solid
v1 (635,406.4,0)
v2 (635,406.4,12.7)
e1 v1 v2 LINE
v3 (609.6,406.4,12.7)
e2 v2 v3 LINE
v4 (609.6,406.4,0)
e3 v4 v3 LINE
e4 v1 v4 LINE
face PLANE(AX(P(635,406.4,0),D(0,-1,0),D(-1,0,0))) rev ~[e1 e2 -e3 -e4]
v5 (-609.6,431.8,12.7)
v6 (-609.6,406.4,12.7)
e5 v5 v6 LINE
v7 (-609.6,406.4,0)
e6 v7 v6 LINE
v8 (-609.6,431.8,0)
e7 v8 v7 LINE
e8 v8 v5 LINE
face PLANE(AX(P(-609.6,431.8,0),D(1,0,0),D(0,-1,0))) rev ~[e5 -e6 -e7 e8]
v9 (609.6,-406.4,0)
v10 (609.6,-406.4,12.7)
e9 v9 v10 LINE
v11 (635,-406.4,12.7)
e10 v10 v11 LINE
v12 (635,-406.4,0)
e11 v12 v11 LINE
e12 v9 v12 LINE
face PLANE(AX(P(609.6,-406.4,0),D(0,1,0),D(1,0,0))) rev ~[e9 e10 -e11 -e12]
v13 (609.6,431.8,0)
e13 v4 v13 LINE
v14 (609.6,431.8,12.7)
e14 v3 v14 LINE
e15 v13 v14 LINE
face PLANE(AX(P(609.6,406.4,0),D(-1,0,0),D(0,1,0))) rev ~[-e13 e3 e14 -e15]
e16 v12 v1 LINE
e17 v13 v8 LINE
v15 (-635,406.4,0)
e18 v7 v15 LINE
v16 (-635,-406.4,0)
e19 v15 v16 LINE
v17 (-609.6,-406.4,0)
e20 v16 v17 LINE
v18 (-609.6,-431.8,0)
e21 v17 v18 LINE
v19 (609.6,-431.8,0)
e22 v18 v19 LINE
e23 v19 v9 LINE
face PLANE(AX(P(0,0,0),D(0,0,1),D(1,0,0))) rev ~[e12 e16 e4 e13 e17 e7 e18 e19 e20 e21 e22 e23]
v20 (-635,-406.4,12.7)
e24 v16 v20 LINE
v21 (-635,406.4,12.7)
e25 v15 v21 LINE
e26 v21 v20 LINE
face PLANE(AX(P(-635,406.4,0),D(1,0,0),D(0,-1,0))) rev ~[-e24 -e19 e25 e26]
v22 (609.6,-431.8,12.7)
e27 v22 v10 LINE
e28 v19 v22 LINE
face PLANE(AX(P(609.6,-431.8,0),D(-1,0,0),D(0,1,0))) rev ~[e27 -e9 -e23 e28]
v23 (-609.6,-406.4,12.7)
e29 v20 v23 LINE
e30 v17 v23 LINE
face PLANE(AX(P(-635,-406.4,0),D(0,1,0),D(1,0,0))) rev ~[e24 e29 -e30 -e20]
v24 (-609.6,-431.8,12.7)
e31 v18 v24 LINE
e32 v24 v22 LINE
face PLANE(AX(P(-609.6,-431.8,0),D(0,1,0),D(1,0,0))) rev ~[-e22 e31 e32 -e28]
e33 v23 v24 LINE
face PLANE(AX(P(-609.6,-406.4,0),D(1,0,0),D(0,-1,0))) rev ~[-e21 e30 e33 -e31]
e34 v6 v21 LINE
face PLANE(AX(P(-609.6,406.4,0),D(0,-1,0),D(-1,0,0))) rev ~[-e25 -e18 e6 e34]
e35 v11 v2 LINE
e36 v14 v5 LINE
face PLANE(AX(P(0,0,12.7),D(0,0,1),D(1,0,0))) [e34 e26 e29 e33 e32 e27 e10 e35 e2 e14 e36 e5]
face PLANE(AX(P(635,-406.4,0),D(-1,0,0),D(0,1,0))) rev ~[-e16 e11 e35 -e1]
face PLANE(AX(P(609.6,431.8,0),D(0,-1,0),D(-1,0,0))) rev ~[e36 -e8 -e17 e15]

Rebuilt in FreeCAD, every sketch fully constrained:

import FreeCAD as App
import Part
import Sketcher

V = App.Vector
Q = App.Units.Quantity

doc = App.newDocument("Part")
body = doc.addObject("PartDesign::Body", "Body")

sketch1 = body.newObject("Sketcher::SketchObject", "Sketch")
sketch1.AttachmentSupport = (doc.getObject("XY_Plane"), [""])
sketch1.MapMode = "FlatFace"
sketch1.addGeometry([
    Part.LineSegment(V(635, -406.4, 0), V(635, 406.4, 0)),
    Part.LineSegment(V(635, 406.4, 0), V(609.6, 406.4, 0)),
    Part.LineSegment(V(609.6, 406.4, 0), V(609.6, 431.8, 0)),
    Part.LineSegment(V(609.6, 431.8, 0), V(-609.6, 431.8, 0)),
    Part.LineSegment(V(-609.6, 431.8, 0), V(-609.6, 406.4, 0)),
    Part.LineSegment(V(-609.6, 406.4, 0), V(-635, 406.4, 0)),
    Part.LineSegment(V(-635, 406.4, 0), V(-635, -406.4, 0)),
    Part.LineSegment(V(-635, -406.4, 0), V(-609.6, -406.4, 0)),
    Part.LineSegment(V(-609.6, -406.4, 0), V(-609.6, -431.8, 0)),
    Part.LineSegment(V(-609.6, -431.8, 0), V(609.6, -431.8, 0)),
    Part.LineSegment(V(609.6, -431.8, 0), V(609.6, -406.4, 0)),
    Part.LineSegment(V(609.6, -406.4, 0), V(635, -406.4, 0)),
], False)
sketch1.addConstraint([
    Sketcher.Constraint("Coincident", 0, 2, 1, 1),
    Sketcher.Constraint("Coincident", 1, 2, 2, 1),
    Sketcher.Constraint("Coincident", 2, 2, 3, 1),
    Sketcher.Constraint("Coincident", 3, 2, 4, 1),
    Sketcher.Constraint("Coincident", 4, 2, 5, 1),
    Sketcher.Constraint("Coincident", 5, 2, 6, 1),
    Sketcher.Constraint("Coincident", 6, 2, 7, 1),
    Sketcher.Constraint("Coincident", 7, 2, 8, 1),
    Sketcher.Constraint("Coincident", 8, 2, 9, 1),
    Sketcher.Constraint("Coincident", 9, 2, 10, 1),
    Sketcher.Constraint("Coincident", 10, 2, 11, 1),
    Sketcher.Constraint("Coincident", 11, 2, 0, 1),
    Sketcher.Constraint("Vertical", 0),
    Sketcher.Constraint("Horizontal", 1),
    Sketcher.Constraint("Vertical", 2),
    Sketcher.Constraint("Horizontal", 3),
    Sketcher.Constraint("Vertical", 4),
    Sketcher.Constraint("Horizontal", 5),
    Sketcher.Constraint("Vertical", 6),
    Sketcher.Constraint("Horizontal", 7),
    Sketcher.Constraint("Vertical", 8),
    Sketcher.Constraint("Horizontal", 9),
    Sketcher.Constraint("Vertical", 10),
    Sketcher.Constraint("Horizontal", 11),
    Sketcher.Constraint("Symmetric", 0, 2, 6, 2, -1, 1),
    Sketcher.Constraint("Symmetric", 2, 2, 8, 2, -1, 1),
    Sketcher.Constraint("Symmetric", 4, 2, 10, 2, -1, 1),
    Sketcher.Constraint("Symmetric", 1, 2, 4, 2, -2),
    Sketcher.Constraint("Equal", 11, 2),
    Sketcher.Constraint("DistanceX", 1, 2, 1, 1, Q("1 in")),
    Sketcher.Constraint("DistanceX", 3, 2, 3, 1, Q("48 in")),
    Sketcher.Constraint("DistanceY", 0, 1, 0, 2, Q("32 in")),
])
pad1 = body.newObject("PartDesign::Pad", "Pad")
pad1.Profile = sketch1
pad1.Length = Q("0.5 in")

doc.recompute()
